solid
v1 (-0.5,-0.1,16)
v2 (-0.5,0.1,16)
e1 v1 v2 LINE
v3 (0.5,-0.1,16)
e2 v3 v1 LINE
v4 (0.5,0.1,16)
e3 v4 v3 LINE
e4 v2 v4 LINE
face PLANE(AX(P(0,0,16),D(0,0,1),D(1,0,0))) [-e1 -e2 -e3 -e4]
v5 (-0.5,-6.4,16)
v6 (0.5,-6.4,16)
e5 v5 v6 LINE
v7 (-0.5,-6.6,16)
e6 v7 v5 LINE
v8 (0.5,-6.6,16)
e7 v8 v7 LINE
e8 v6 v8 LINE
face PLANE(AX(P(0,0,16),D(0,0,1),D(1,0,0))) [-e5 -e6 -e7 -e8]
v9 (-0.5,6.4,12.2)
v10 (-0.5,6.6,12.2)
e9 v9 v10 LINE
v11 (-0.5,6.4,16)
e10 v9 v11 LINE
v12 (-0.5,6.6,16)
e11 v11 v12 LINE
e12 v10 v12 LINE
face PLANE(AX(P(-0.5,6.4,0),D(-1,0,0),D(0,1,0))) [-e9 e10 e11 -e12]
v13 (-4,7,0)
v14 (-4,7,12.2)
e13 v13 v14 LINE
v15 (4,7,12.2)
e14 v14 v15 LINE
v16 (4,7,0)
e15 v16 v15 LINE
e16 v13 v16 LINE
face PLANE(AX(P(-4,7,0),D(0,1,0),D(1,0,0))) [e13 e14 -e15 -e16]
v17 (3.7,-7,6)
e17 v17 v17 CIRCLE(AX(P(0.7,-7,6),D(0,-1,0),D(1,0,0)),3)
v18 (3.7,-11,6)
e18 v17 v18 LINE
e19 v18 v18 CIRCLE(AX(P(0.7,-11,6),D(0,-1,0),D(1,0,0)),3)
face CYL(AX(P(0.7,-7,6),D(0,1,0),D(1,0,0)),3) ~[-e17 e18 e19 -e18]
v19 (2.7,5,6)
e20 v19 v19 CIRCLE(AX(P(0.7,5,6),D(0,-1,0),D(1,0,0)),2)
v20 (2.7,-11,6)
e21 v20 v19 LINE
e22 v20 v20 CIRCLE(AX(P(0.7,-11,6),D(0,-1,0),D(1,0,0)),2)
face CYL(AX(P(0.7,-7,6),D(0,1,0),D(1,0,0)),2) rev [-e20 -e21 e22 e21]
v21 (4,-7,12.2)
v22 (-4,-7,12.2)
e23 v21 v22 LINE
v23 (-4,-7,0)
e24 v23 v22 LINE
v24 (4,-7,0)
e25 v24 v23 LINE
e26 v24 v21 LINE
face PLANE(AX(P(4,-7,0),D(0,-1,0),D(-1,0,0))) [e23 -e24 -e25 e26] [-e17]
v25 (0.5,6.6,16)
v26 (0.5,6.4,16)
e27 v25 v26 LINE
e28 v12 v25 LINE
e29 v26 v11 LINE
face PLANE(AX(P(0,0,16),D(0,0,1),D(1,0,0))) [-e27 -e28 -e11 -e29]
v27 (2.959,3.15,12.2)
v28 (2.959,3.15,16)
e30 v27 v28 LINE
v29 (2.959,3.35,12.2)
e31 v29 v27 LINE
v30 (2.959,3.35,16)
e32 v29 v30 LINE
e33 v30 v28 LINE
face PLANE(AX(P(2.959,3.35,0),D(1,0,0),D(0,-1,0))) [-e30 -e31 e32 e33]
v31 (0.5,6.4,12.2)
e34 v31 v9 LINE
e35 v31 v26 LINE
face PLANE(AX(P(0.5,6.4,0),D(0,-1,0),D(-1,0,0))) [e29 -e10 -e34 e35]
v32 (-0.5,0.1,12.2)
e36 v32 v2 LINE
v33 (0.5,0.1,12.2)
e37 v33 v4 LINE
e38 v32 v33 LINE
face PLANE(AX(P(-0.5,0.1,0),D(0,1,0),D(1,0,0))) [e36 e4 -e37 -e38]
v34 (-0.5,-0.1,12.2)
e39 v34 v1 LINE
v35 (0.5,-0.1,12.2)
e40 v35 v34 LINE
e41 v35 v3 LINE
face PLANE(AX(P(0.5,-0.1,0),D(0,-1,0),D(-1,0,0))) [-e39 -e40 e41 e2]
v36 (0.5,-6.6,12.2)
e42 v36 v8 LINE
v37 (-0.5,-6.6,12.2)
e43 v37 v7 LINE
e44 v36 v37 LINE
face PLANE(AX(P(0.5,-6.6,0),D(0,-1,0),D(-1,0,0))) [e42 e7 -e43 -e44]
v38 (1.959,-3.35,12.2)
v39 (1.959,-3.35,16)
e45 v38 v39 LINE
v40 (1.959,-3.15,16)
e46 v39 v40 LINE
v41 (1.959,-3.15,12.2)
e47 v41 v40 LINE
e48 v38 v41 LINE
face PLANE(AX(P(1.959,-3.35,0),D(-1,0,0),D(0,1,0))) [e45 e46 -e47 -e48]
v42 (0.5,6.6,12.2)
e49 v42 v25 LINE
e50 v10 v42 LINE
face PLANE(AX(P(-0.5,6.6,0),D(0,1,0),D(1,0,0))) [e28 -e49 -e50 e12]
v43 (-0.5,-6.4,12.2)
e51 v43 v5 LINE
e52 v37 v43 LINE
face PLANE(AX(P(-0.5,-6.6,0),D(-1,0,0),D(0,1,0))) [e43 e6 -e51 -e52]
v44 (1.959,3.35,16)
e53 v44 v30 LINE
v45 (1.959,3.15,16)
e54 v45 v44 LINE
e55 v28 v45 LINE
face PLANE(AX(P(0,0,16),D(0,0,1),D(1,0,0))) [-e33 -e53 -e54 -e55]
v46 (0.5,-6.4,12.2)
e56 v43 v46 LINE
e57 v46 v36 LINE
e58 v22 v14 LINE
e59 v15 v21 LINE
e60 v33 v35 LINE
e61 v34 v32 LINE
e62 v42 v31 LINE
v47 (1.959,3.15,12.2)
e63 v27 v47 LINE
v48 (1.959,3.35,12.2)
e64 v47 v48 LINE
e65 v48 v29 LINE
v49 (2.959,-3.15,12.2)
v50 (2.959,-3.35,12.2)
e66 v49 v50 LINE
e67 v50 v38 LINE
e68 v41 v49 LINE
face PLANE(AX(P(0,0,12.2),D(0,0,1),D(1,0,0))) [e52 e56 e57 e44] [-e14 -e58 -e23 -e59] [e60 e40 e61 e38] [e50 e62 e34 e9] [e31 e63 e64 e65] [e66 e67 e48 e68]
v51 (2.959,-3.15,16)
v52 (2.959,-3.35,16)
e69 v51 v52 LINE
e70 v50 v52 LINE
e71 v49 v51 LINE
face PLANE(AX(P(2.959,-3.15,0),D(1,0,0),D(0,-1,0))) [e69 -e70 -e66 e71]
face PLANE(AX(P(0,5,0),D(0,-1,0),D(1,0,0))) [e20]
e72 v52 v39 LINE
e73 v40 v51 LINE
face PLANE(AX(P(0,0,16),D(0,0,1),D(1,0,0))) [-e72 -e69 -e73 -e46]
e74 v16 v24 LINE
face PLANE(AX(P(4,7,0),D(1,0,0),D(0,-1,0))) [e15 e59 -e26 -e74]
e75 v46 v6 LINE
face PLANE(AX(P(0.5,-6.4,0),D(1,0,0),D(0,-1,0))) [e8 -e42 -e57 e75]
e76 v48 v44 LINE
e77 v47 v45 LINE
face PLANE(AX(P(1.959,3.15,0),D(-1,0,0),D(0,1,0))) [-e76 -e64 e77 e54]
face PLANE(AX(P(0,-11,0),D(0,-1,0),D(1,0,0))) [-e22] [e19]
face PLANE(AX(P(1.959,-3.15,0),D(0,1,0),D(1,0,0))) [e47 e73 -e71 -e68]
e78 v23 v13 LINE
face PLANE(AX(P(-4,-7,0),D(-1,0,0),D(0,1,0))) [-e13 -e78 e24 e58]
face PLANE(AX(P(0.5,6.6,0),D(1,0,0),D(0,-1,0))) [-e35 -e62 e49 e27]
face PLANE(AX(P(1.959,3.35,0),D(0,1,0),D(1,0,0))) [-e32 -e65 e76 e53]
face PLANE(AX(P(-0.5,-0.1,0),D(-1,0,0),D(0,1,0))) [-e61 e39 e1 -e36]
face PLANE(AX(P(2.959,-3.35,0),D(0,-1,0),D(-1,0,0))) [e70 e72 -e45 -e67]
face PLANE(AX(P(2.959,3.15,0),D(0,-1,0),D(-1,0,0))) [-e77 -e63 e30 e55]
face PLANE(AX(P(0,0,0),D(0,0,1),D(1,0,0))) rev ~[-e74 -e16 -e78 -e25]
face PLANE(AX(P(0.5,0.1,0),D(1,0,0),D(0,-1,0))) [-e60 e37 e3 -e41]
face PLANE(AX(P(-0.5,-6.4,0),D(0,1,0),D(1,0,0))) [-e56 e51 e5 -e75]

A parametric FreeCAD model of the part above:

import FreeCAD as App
import Part
import Sketcher

V = App.Vector


def add_polygon(sketch, points):
    """Adds a closed chain of lines whose ends are joined by coincident constraints."""
    first, n = sketch.GeometryCount, len(points)
    for a, b in zip(points, points[1:] + points[:1]):
        sketch.addGeometry(Part.LineSegment(App.Vector(*a, 0), App.Vector(*b, 0)), False)
    for i in range(n):
        sketch.addConstraint(Sketcher.Constraint("Coincident", first + i, 2, first + (i + 1) % n, 1))

doc = App.newDocument("Part")
params = doc.addObject("Spreadsheet::Sheet", "Params")
for row, (alias, value) in enumerate([
    ("sketch1_width", "1 mm"),
    ("sketch1_height", "0.2 mm"),
    ("pad1_length", "16 mm"),
    ("sketch2_width", "8 mm"),
    ("sketch2_width2", "1 mm"),
    ("sketch2_height", "14 mm"),
    ("sketch2_height2", "0.2 mm"),
    ("pad2_length", "12.2 mm"),
    ("sketch3_diameter", "6 mm"),
    ("sketch3_diameter2", "4 mm"),
    ("pad3_length", "4 mm"),
    ("sketch4_diameter", "4 mm"),
    ("pocket1_length", "12 mm"),
], start=1):
    params.set(f"A{row}", alias)
    params.set(f"B{row}", "=" + value)
    params.setAlias(f"B{row}", alias)

body = doc.addObject("PartDesign::Body", "Body")
body.AllowCompound = True

sketch1 = body.newObject("Sketcher::SketchObject", "Sketch")
sketch1.AttachmentSupport = (doc.getObject("XY_Plane"), [""])
sketch1.MapMode = "FlatFace"
add_polygon(sketch1, [(-0.5, -0.1), (0.5, -0.1), (0.5, 0.1), (-0.5, 0.1)])
add_polygon(sketch1, [(-0.5, -6.6), (0.5, -6.6), (0.5, -6.4), (-0.5, -6.4)])
add_polygon(sketch1, [(1.96, -3.35), (2.96, -3.35), (2.96, -3.15), (1.96, -3.15)])
add_polygon(sketch1, [(1.96, 3.15), (2.96, 3.15), (2.96, 3.35), (1.96, 3.35)])
add_polygon(sketch1, [(-0.5, 6.4), (0.5, 6.4), (0.5, 6.6), (-0.5, 6.6)])
sketch1.addConstraint(Sketcher.Constraint("Horizontal", 0))
sketch1.addConstraint(Sketcher.Constraint("Vertical", 1))
sketch1.addConstraint(Sketcher.Constraint("Horizontal", 2))
sketch1.addConstraint(Sketcher.Constraint("Vertical", 3))
sketch1.addConstraint(Sketcher.Constraint("Horizontal", 4))
sketch1.addConstraint(Sketcher.Constraint("Vertical", 5))
sketch1.addConstraint(Sketcher.Constraint("Horizontal", 6))
sketch1.addConstraint(Sketcher.Constraint("Vertical", 7))
sketch1.addConstraint(Sketcher.Constraint("Horizontal", 8))
sketch1.addConstraint(Sketcher.Constraint("Vertical", 9))
sketch1.addConstraint(Sketcher.Constraint("Horizontal", 10))
sketch1.addConstraint(Sketcher.Constraint("Vertical", 11))
sketch1.addConstraint(Sketcher.Constraint("Horizontal", 12))
sketch1.addConstraint(Sketcher.Constraint("Vertical", 13))
sketch1.addConstraint(Sketcher.Constraint("Horizontal", 14))
sketch1.addConstraint(Sketcher.Constraint("Vertical", 15))
sketch1.addConstraint(Sketcher.Constraint("Horizontal", 16))
sketch1.addConstraint(Sketcher.Constraint("Vertical", 17))
sketch1.addConstraint(Sketcher.Constraint("Horizontal", 18))
sketch1.addConstraint(Sketcher.Constraint("Vertical", 19))
sketch1.addConstraint(Sketcher.Constraint("Symmetric", 0, 2, 2, 2, -1, 1))
sketch1.addConstraint(Sketcher.Constraint("Symmetric", 6, 2, 16, 2, -1, 1))
sketch1.addConstraint(Sketcher.Constraint("Symmetric", 4, 2, 18, 2, -1, 1))
sketch1.addConstraint(Sketcher.Constraint("Symmetric", 9, 2, 12, 2, -1))
sketch1.addConstraint(Sketcher.Constraint("Symmetric", 11, 2, 14, 2, -1))
sketch1.addConstraint(Sketcher.Constraint("Vertical", 1, 2, 4, 2))
sketch1.addConstraint(Sketcher.Constraint("Vertical", 3, 2, 6, 2))
sketch1.addConstraint(Sketcher.Constraint("Equal", 6, 8))
sketch1.addConstraint(Sketcher.Constraint("Equal", 3, 5))
sketch1.addConstraint(Sketcher.Constraint("Equal", 7, 9))
sketch1.addConstraint(Sketcher.Constraint("DistanceX", 0, 1, 0, 2, 1.0))
sketch1.addConstraint(Sketcher.Constraint("DistanceY", 1, 1, 1, 2, 0.2))
sketch1.addConstraint(Sketcher.Constraint("DistanceY", 4, 2, 0, 2, 6.5))
sketch1.addConstraint(Sketcher.Constraint("DistanceX", 5, 2, 8, 2, 2.459))
sketch1.addConstraint(Sketcher.Constraint("DistanceY", 9, 2, 12, 2, 6.3))
sketch1.setExpression("Constraints[50]", "Params.sketch1_width")
sketch1.setExpression("Constraints[51]", "Params.sketch1_height")
pad1 = body.newObject("PartDesign::Pad", "Pad")
pad1.Profile = sketch1
pad1.setExpression("Length", "Params.pad1_length")

sketch2 = body.newObject("Sketcher::SketchObject", "Sketch001")
sketch2.AttachmentSupport = (doc.getObject("XY_Plane"), [""])
sketch2.MapMode = "FlatFace"
add_polygon(sketch2, [(-4, -7), (4, -7), (4, 7), (-4, 7)])
add_polygon(sketch2, [(0.5, -6.4), (0.5, -6.6), (-0.5, -6.6), (-0.5, -6.4)])
add_polygon(sketch2, [(2.96, -3.15), (2.96, -3.35), (1.96, -3.35), (1.96, -3.15)])
add_polygon(sketch2, [(0.5, 0.1), (0.5, -0.1), (-0.5, -0.1), (-0.5, 0.1)])
add_polygon(sketch2, [(2.96, 3.35), (2.96, 3.15), (1.96, 3.15), (1.96, 3.35)])
add_polygon(sketch2, [(0.5, 6.6), (0.5, 6.4), (-0.5, 6.4), (-0.5, 6.6)])
sketch2.addConstraint(Sketcher.Constraint("Horizontal", 0))
sketch2.addConstraint(Sketcher.Constraint("Vertical", 1))
sketch2.addConstraint(Sketcher.Constraint("Horizontal", 2))
sketch2.addConstraint(Sketcher.Constraint("Vertical", 3))
sketch2.addConstraint(Sketcher.Constraint("Vertical", 4))
sketch2.addConstraint(Sketcher.Constraint("Horizontal", 5))
sketch2.addConstraint(Sketcher.Constraint("Vertical", 6))
sketch2.addConstraint(Sketcher.Constraint("Horizontal", 7))
sketch2.addConstraint(Sketcher.Constraint("Vertical", 8))
sketch2.addConstraint(Sketcher.Constraint("Horizontal", 9))
sketch2.addConstraint(Sketcher.Constraint("Vertical", 10))
sketch2.addConstraint(Sketcher.Constraint("Horizontal", 11))
sketch2.addConstraint(Sketcher.Constraint("Vertical", 12))
sketch2.addConstraint(Sketcher.Constraint("Horizontal", 13))
sketch2.addConstraint(Sketcher.Constraint("Vertical", 14))
sketch2.addConstraint(Sketcher.Constraint("Horizontal", 15))
sketch2.addConstraint(Sketcher.Constraint("Vertical", 16))
sketch2.addConstraint(Sketcher.Constraint("Horizontal", 17))
sketch2.addConstraint(Sketcher.Constraint("Vertical", 18))
sketch2.addConstraint(Sketcher.Constraint("Horizontal", 19))
sketch2.addConstraint(Sketcher.Constraint("Vertical", 20))
sketch2.addConstraint(Sketcher.Constraint("Horizontal", 21))
sketch2.addConstraint(Sketcher.Constraint("Vertical", 22))
sketch2.addConstraint(Sketcher.Constraint("Horizontal", 23))
sketch2.addConstraint(Sketcher.Constraint("Symmetric", 0, 2, 2, 2, -1, 1))
sketch2.addConstraint(Sketcher.Constraint("Symmetric", 12, 2, 14, 2, -1, 1))
sketch2.addConstraint(Sketcher.Constraint("Symmetric", 6, 2, 20, 2, -1, 1))
sketch2.addConstraint(Sketcher.Constraint("Symmetric", 4, 2, 22, 2, -1, 1))
sketch2.addConstraint(Sketcher.Constraint("Symmetric", 11, 2, 16, 2, -1))
sketch2.addConstraint(Sketcher.Constraint("Symmetric", 9, 2, 18, 2, -1))
sketch2.addConstraint(Sketcher.Constraint("Vertical", 7, 2, 12, 2))
sketch2.addConstraint(Sketcher.Constraint("Vertical", 6, 2, 13, 2))
sketch2.addConstraint(Sketcher.Constraint("Equal", 7, 9))
sketch2.addConstraint(Sketcher.Constraint("Equal", 6, 8))
sketch2.addConstraint(Sketcher.Constraint("Equal", 10, 12))
sketch2.addConstraint(Sketcher.Constraint("DistanceX", 0, 1, 0, 2, 8.0))
sketch2.addConstraint(Sketcher.Constraint("DistanceX", 5, 2, 5, 1, 1.0))
sketch2.addConstraint(Sketcher.Constraint("DistanceY", 1, 1, 1, 2, 14.0))
sketch2.addConstraint(Sketcher.Constraint("DistanceY", 4, 2, 4, 1, 0.2))
sketch2.addConstraint(Sketcher.Constraint("DistanceX", 7, 2, 8, 2, 2.459))
sketch2.addConstraint(Sketcher.Constraint("DistanceY", 4, 2, -1, 1, 6.6))
sketch2.addConstraint(Sketcher.Constraint("DistanceY", 8, 2, -1, 1, 3.35))
sketch2.setExpression("Constraints[59]", "Params.sketch2_width")
sketch2.setExpression("Constraints[60]", "Params.sketch2_width2")
sketch2.setExpression("Constraints[61]", "Params.sketch2_height")
sketch2.setExpression("Constraints[62]", "Params.sketch2_height2")
pad2 = body.newObject("PartDesign::Pad", "Pad001")
pad2.Profile = sketch2
pad2.setExpression("Length", "Params.pad2_length")

sketch3 = body.newObject("Sketcher::SketchObject", "Sketch002")
sketch3.AttachmentSupport = (doc.getObject("XZ_Plane"), [""])
sketch3.MapMode = "FlatFace"
sketch3.AttachmentOffset = App.Placement(V(0, 0, 7), App.Rotation())
sketch3.addGeometry(Part.Circle(V(0.7, 6, 0), V(0, 0, 1), 3), False)
sketch3.addGeometry(Part.Circle(V(0.7, 6, 0), V(0, 0, 1), 2), False)
sketch3.addConstraint(Sketcher.Constraint("Coincident", 1, 3, 0, 3))
sketch3.addConstraint(Sketcher.Constraint("Diameter", 0, 6.0))
sketch3.addConstraint(Sketcher.Constraint("Diameter", 1, 4.0))
sketch3.addConstraint(Sketcher.Constraint("DistanceY", -1, 1, 0, 3, 6.0))
sketch3.addConstraint(Sketcher.Constraint("DistanceX", -1, 1, 0, 3, 0.7))
sketch3.setExpression("Constraints[1]", "Params.sketch3_diameter")
sketch3.setExpression("Constraints[2]", "Params.sketch3_diameter2")
pad3 = body.newObject("PartDesign::Pad", "Pad002")
pad3.Profile = sketch3
pad3.setExpression("Length", "Params.pad3_length")

sketch4 = body.newObject("Sketcher::SketchObject", "Sketch003")
sketch4.AttachmentSupport = (doc.getObject("XZ_Plane"), [""])
sketch4.MapMode = "FlatFace"
sketch4.AttachmentOffset = App.Placement(V(0, 0, 7), App.Rotation())
sketch4.addGeometry(Part.Circle(V(0.7, 6, 0), V(0, 0, 1), 2), False)
sketch4.addConstraint(Sketcher.Constraint("Diameter", 0, 4.0))
sketch4.addConstraint(Sketcher.Constraint("DistanceY", -1, 1, 0, 3, 6.0))
sketch4.addConstraint(Sketcher.Constraint("DistanceX", -1, 1, 0, 3, 0.7))
sketch4.setExpression("Constraints[0]", "Params.sketch4_diameter")
pocket1 = body.newObject("PartDesign::Pocket", "Pocket")
pocket1.Profile = sketch4
pocket1.setExpression("Length", "Params.pocket1_length")

doc.recompute()
